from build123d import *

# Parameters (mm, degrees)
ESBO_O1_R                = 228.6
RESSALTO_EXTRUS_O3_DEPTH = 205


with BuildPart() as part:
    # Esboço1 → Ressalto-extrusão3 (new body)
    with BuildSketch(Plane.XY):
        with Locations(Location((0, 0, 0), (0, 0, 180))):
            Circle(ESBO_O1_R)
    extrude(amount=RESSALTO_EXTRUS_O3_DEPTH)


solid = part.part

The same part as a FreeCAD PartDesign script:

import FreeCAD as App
import Part
import Sketcher

doc = App.newDocument("Part")
body = doc.addObject("PartDesign::Body", "Body")

# Sketch on XY plane
sketch1 = body.newObject("Sketcher::SketchObject", "Sketch")
sketch1.AttachmentSupport = (doc.getObject("XY_Plane"), [""])
sketch1.MapMode = "FlatFace"
sketch1.addGeometry(Part.Circle(App.Vector(0, 0, 0), App.Vector(0, 0, 1), 229), False)
sketch1.addConstraint([
    Sketcher.Constraint("Coincident", 0, 3, -1, 1),
    Sketcher.Constraint("Diameter", 0, 457.2),
])
pad1 = body.newObject("PartDesign::Pad", "Pad")
pad1.Profile = sketch1
pad1.Length = 205

doc.recompute()
